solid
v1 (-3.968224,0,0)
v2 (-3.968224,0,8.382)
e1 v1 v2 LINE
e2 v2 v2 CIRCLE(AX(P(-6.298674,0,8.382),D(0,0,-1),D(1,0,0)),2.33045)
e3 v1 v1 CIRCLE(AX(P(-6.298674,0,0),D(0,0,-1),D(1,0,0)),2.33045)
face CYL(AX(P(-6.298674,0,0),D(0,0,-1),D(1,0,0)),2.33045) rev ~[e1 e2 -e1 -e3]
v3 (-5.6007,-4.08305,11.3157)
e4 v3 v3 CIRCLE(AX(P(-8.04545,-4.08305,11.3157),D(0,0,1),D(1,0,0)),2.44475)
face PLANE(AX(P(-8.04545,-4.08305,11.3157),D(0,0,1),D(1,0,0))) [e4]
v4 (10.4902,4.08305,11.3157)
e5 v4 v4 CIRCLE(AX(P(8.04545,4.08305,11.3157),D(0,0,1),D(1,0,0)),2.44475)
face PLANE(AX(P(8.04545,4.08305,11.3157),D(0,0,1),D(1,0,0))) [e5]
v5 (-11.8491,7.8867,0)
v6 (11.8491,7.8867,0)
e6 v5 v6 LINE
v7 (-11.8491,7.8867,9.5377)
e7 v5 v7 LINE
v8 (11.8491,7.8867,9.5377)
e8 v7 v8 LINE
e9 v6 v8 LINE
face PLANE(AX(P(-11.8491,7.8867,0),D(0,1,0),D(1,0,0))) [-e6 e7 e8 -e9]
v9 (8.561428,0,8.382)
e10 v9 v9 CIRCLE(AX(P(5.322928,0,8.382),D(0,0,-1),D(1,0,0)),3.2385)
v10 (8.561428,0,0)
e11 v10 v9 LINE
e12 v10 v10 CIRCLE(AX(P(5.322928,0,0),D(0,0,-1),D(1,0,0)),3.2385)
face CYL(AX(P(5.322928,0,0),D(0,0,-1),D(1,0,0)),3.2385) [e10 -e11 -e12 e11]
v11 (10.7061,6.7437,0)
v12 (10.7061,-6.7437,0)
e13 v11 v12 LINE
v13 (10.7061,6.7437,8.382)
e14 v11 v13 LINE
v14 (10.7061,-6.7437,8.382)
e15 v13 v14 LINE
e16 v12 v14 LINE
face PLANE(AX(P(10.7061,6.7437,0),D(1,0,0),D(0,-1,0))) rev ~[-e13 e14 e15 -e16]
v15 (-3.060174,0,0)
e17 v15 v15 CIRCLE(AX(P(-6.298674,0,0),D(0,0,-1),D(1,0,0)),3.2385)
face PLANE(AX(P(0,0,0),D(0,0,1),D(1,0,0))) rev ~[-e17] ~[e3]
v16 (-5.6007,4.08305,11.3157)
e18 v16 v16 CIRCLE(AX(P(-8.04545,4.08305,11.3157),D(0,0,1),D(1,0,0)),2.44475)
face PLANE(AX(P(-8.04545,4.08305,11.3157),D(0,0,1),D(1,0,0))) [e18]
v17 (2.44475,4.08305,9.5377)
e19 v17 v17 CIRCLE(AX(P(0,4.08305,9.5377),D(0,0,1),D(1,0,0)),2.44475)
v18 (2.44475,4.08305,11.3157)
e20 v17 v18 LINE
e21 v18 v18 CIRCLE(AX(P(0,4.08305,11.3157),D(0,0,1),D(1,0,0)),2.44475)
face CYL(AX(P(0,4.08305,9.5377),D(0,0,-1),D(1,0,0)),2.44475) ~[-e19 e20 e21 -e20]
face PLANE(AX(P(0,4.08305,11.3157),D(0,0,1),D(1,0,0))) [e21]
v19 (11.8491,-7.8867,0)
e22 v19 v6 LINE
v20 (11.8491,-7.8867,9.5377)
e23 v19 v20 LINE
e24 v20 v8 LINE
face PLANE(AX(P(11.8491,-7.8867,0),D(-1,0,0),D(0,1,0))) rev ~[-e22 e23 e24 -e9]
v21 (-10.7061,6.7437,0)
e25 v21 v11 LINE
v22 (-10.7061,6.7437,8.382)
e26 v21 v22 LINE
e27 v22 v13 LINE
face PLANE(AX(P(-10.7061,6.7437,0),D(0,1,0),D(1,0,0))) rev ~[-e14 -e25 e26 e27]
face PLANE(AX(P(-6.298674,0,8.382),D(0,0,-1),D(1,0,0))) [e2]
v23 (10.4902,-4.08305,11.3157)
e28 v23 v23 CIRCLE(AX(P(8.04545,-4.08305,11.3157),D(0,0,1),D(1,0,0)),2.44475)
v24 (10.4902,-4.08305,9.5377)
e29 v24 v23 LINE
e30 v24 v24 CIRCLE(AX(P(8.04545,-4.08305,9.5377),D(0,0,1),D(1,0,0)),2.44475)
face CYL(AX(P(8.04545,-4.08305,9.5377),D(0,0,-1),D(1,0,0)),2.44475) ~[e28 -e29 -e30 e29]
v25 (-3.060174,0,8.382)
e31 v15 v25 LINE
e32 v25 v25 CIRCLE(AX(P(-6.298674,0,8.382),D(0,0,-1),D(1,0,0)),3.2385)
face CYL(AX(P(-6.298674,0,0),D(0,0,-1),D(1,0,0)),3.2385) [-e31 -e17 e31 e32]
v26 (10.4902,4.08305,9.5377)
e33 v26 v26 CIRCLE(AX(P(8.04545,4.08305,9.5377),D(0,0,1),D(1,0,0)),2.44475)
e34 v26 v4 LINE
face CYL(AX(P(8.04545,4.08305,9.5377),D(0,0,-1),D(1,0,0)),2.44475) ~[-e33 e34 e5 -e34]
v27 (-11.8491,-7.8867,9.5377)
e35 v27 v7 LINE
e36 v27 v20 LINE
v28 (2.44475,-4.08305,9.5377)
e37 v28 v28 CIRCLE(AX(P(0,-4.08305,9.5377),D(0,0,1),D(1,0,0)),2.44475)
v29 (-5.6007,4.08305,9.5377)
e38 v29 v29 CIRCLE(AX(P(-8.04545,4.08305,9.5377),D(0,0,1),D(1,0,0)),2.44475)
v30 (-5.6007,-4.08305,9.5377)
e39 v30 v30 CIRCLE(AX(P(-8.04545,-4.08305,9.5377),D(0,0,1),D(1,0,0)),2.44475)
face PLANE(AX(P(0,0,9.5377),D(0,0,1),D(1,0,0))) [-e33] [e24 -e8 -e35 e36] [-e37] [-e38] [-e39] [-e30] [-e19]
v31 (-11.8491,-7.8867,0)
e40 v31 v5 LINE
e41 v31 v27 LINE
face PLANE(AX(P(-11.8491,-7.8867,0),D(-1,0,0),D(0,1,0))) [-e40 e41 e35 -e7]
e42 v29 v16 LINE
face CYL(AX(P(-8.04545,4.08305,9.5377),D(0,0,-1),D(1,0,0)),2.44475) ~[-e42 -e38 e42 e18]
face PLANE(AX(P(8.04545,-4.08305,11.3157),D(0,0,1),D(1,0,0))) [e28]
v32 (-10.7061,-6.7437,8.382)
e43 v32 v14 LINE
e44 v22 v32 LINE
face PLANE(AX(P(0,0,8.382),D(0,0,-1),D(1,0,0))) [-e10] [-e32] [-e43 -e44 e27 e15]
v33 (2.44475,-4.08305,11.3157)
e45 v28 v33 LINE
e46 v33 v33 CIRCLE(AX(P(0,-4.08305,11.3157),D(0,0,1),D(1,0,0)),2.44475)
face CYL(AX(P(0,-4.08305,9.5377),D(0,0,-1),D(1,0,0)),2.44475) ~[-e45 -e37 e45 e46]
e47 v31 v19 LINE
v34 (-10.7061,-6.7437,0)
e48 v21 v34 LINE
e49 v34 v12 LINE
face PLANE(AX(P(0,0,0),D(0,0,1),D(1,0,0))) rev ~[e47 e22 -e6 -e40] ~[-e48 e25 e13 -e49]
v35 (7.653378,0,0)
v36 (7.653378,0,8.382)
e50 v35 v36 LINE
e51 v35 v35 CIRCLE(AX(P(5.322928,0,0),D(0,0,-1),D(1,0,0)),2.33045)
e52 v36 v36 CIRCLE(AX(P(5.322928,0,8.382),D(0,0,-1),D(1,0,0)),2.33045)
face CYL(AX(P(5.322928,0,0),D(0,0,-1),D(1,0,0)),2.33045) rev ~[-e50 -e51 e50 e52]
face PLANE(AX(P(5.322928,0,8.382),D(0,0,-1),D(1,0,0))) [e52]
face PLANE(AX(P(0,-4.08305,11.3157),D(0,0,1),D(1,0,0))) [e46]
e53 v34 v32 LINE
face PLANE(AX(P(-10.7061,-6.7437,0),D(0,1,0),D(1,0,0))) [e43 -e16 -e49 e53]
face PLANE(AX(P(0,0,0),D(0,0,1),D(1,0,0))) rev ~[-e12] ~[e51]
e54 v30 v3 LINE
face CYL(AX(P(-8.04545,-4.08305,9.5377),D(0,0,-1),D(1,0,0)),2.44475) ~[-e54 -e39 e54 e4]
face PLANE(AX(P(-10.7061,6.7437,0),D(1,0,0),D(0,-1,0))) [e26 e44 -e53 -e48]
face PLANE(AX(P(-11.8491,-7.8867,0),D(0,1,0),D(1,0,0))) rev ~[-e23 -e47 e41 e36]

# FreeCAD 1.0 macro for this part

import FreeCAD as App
import Part
import Sketcher
from FreeCAD import Vector
Q = App.Units.Quantity

doc = App.newDocument("Part")
body = doc.addObject("PartDesign::Body", "Body")

sketch1 = body.newObject("Sketcher::SketchObject", "Sketch")
sketch1.AttachmentSupport = (doc.getObject("XY_Plane"), [""])
sketch1.MapMode = "FlatFace"
sketch1.addGeometry([
    Part.LineSegment(Vector(-12, 8, 0), Vector(-12, -8, 0)),
    Part.LineSegment(Vector(-12, -8, 0), Vector(12, -8, 0)),
    Part.LineSegment(Vector(12, -8, 0), Vector(12, 8, 0)),
    Part.LineSegment(Vector(12, 8, 0), Vector(-12, 8, 0)),
], False)
sketch1.addConstraint([
    Sketcher.Constraint("Coincident", 0, 2, 1, 1),
    Sketcher.Constraint("Coincident", 1, 2, 2, 1),
    Sketcher.Constraint("Coincident", 2, 2, 3, 1),
    Sketcher.Constraint("Coincident", 3, 2, 0, 1),
    Sketcher.Constraint("Vertical", 0),
    Sketcher.Constraint("Horizontal", 1),
    Sketcher.Constraint("Vertical", 2),
    Sketcher.Constraint("Horizontal", 3),
    Sketcher.Constraint("Symmetric", 0, 2, 2, 2, -1, 1),
    Sketcher.Constraint("DistanceX", 1, 1, 1, 2, Q("0.933 in")),
    Sketcher.Constraint("DistanceY", 0, 2, 0, 1, Q("0.621 in")),
])
pad1 = body.newObject("PartDesign::Pad", "Pad")
pad1.Profile = sketch1
pad1.Length = Q("0.3755 in")

sketch2 = body.newObject("Sketcher::SketchObject", "Sketch001")
sketch2.AttachmentSupport = (doc.getObject("XY_Plane"), [""])
sketch2.MapMode = "FlatFace"
sketch2.AttachmentOffset = App.Placement(Vector(0, 0, 0.3755 * 25.4), App.Rotation())
sketch2.addGeometry([
    Part.Circle(Vector(-8, -4.1, 0), Vector(0, 0, 1), 2.4),
    Part.Circle(Vector(0, -4.1, 0), Vector(0, 0, 1), 2.4),
    Part.Circle(Vector(8, -4.1, 0), Vector(0, 0, 1), 2.4),
    Part.Circle(Vector(8, 4.1, 0), Vector(0, 0, 1), 2.4),
    Part.Circle(Vector(0, 4.1, 0), Vector(0, 0, 1), 2.4),
    Part.Circle(Vector(-8, 4.1, 0), Vector(0, 0, 1), 2.4),
], False)
sketch2.addConstraint([
    Sketcher.Constraint("Equal", 0, 1),
    Sketcher.Constraint("Equal", 1, 2),
    Sketcher.Constraint("Equal", 2, 3),
    Sketcher.Constraint("Equal", 3, 4),
    Sketcher.Constraint("Equal", 4, 5),
    Sketcher.Constraint("Symmetric", 0, 3, 3, 3, -1, 1),
    Sketcher.Constraint("Symmetric", 1, 3, 4, 3, -1, 1),
    Sketcher.Constraint("Symmetric", 2, 3, 5, 3, -1, 1),
    Sketcher.Constraint("Symmetric", 0, 3, 2, 3, -2),
    Sketcher.Constraint("PointOnObject", 1, 3, -2),
    Sketcher.Constraint("Horizontal", 0, 3, 1, 3),
    Sketcher.Constraint("Diameter", 0, Q("0.1925 in")),
    Sketcher.Constraint("DistanceX", 0, 3, 2, 3, Q("0.6335 in")),
    Sketcher.Constraint("DistanceY", 2, 3, 3, 3, Q("0.3215 in")),
])
pad2 = body.newObject("PartDesign::Pad", "Pad001")
pad2.Profile = sketch2
pad2.Length = Q("0.07 in")

sketch3 = body.newObject("Sketcher::SketchObject", "Sketch002")
sketch3.AttachmentSupport = (doc.getObject("XY_Plane"), [""])
sketch3.MapMode = "FlatFace"
sketch3.addGeometry([
    Part.LineSegment(Vector(-10.7, -6.7, 0), Vector(-10.7, 6.7, 0)),
    Part.LineSegment(Vector(-10.7, 6.7, 0), Vector(10.7, 6.7, 0)),
    Part.LineSegment(Vector(10.7, 6.7, 0), Vector(10.7, -6.7, 0)),
    Part.LineSegment(Vector(10.7, -6.7, 0), Vector(-10.7, -6.7, 0)),
    Part.Circle(Vector(-6.3, 0, 0), Vector(0, 0, 1), 3.2),
    Part.Circle(Vector(5.3, 0, 0), Vector(0, 0, 1), 3.2),
], False)
sketch3.addConstraint([
    Sketcher.Constraint("Coincident", 0, 2, 1, 1),
    Sketcher.Constraint("Coincident", 1, 2, 2, 1),
    Sketcher.Constraint("Coincident", 2, 2, 3, 1),
    Sketcher.Constraint("Coincident", 3, 2, 0, 1),
    Sketcher.Constraint("Vertical", 0),
    Sketcher.Constraint("Horizontal", 1),
    Sketcher.Constraint("Vertical", 2),
    Sketcher.Constraint("Horizontal", 3),
    Sketcher.Constraint("Equal", 4, 5),
    Sketcher.Constraint("Symmetric", 0, 2, 2, 2, -1, 1),
    Sketcher.Constraint("PointOnObject", 4, 3, -1),
    Sketcher.Constraint("PointOnObject", 5, 3, -1),
    Sketcher.Constraint("Diameter", 4, Q("0.255 in")),
    Sketcher.Constraint("DistanceX", 1, 1, 1, 2, Q("0.843 in")),
    Sketcher.Constraint("DistanceY", 0, 1, 0, 2, Q("0.531 in")),
    Sketcher.Constraint("DistanceX", 4, 3, 5, 3, Q("11.621602 mm")),
    Sketcher.Constraint("DistanceX", 0, 2, 5, 3, Q("16.029028 mm")),
])
pocket1 = body.newObject("PartDesign::Pocket", "Pocket")
pocket1.Profile = sketch3
pocket1.Length = Q("0.33 in")
pocket1.Reversed = True

sketch4 = body.newObject("Sketcher::SketchObject", "Sketch003")
sketch4.AttachmentSupport = (doc.getObject("XY_Plane"), [""])
sketch4.MapMode = "FlatFace"
sketch4.addGeometry([
    Part.Circle(Vector(-6.3, 0, 0), Vector(0, 0, 1), 2.3),
    Part.Circle(Vector(5.3, 0, 0), Vector(0, 0, 1), 2.3),
], False)
sketch4.addConstraint([
    Sketcher.Constraint("Equal", 0, 1),
    Sketcher.Constraint("PointOnObject", 0, 3, -1),
    Sketcher.Constraint("PointOnObject", 1, 3, -1),
    Sketcher.Constraint("Diameter", 0, Q("0.1835 in")),
    Sketcher.Constraint("DistanceX", 0, 3, 1, 3, Q("11.621602 mm")),
    Sketcher.Constraint("DistanceX", 0, 3, -1, 1, Q("6.298674 mm")),
])
pocket2 = body.newObject("PartDesign::Pocket", "Pocket001")
pocket2.Profile = sketch4
pocket2.Length = Q("0.33 in")
pocket2.Reversed = True

doc.recompute()
